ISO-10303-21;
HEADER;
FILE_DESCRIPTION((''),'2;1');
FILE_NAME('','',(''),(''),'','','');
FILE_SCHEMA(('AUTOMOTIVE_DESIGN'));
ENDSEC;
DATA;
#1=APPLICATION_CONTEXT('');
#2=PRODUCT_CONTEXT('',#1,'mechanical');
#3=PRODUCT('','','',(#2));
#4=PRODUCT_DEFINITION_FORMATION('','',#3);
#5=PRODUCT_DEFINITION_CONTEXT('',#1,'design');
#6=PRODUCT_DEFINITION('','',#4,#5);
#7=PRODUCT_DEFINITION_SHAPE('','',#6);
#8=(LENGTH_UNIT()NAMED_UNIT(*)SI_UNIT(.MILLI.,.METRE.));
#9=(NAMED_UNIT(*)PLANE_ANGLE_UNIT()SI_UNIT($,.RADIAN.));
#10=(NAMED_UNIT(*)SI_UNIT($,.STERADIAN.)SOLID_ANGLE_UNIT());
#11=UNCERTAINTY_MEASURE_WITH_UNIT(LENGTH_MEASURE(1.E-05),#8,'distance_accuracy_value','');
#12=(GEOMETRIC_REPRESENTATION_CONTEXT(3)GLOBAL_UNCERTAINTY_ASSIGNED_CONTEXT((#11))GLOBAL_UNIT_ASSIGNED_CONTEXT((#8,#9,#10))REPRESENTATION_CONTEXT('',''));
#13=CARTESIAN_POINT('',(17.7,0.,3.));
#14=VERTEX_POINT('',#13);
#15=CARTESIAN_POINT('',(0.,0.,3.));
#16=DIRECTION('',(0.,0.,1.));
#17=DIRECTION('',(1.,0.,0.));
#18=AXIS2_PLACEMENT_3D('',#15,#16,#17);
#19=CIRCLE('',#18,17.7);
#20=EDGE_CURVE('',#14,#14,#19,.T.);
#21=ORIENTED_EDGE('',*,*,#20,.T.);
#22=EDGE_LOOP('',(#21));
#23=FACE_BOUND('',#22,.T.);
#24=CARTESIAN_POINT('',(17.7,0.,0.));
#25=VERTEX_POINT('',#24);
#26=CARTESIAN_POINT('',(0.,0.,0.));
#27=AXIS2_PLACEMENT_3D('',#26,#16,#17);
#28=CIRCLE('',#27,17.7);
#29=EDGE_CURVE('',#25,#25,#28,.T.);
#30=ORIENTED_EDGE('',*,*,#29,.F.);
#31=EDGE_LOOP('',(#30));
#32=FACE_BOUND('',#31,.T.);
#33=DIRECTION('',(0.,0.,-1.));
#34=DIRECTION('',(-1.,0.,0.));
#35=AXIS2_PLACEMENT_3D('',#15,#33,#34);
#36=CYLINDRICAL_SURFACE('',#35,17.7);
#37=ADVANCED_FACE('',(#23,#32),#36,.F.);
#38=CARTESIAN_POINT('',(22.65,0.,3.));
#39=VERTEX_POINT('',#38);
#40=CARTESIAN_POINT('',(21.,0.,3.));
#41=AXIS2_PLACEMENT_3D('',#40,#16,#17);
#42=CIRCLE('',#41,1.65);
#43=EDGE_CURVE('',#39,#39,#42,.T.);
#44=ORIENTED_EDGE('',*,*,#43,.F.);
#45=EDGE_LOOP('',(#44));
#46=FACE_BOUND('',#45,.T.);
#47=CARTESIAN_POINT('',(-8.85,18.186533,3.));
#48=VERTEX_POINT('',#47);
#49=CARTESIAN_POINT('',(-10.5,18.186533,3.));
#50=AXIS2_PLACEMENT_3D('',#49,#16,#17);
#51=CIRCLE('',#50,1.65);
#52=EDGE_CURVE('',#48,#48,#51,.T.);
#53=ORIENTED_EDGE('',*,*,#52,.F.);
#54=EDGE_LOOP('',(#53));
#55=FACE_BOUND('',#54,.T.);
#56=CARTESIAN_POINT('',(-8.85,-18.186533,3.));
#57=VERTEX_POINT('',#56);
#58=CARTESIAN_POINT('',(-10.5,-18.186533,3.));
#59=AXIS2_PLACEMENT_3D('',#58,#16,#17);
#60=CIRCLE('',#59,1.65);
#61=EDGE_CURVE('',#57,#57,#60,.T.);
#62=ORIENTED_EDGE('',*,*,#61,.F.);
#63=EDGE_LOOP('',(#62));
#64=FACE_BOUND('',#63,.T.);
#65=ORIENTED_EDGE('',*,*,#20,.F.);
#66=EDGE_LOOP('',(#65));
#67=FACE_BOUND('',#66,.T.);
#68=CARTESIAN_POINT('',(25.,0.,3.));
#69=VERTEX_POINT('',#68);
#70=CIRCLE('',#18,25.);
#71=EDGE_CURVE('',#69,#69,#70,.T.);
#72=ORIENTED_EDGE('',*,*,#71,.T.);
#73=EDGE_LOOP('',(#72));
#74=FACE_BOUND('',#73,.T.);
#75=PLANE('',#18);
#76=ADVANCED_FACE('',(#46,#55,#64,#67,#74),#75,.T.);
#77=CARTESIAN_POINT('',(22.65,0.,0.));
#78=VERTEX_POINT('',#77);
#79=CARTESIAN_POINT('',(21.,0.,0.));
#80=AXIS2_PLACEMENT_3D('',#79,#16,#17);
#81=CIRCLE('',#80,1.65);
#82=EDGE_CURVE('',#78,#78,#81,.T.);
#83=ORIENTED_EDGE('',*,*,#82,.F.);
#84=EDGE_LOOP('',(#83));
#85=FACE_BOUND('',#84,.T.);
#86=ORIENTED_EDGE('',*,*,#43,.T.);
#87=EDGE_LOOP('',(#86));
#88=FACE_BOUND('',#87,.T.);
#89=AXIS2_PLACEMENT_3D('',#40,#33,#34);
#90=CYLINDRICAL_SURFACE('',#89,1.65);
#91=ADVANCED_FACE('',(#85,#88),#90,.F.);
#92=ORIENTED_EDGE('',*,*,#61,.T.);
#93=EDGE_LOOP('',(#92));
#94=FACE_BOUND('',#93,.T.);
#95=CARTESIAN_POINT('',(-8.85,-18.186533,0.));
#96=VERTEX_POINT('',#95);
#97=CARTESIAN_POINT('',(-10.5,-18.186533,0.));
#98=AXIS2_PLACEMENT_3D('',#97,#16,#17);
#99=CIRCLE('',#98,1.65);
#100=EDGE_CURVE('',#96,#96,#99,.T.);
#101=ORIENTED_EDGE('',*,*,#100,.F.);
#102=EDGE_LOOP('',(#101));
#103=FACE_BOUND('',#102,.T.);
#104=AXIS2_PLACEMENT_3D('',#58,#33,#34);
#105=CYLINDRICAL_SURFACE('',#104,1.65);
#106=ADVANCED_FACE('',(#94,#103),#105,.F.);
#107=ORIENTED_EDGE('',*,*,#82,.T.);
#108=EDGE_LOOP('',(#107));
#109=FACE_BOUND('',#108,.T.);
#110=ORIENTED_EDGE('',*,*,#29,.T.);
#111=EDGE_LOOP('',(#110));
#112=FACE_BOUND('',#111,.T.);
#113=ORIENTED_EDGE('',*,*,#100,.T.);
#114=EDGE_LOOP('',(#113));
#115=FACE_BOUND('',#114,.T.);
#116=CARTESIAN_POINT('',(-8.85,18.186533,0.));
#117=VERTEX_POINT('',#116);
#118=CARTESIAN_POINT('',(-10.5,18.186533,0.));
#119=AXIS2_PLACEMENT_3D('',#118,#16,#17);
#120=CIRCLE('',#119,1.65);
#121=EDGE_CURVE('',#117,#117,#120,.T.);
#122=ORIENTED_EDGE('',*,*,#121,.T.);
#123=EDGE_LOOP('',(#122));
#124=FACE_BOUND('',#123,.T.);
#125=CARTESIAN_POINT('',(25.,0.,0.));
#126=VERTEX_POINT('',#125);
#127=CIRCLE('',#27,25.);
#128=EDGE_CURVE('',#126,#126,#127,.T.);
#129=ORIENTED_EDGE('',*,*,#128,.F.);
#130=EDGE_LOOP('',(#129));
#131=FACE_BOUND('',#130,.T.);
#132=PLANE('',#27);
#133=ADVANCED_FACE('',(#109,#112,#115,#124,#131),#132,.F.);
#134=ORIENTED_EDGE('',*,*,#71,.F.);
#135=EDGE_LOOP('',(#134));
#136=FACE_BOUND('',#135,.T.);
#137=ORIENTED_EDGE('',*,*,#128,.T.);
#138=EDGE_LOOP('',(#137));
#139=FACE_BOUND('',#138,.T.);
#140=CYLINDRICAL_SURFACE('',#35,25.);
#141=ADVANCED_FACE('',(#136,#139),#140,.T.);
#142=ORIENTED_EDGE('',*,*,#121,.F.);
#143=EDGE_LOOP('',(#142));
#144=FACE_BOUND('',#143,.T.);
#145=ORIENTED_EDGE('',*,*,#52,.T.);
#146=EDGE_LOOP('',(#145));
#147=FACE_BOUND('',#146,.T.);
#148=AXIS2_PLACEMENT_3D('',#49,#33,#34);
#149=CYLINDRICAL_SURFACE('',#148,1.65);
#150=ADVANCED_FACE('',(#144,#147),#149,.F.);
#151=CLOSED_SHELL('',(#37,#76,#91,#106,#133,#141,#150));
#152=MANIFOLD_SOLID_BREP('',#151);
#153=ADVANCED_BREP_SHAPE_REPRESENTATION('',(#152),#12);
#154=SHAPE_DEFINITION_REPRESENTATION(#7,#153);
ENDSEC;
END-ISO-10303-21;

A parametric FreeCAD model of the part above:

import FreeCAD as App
import Part
import Sketcher

V = App.Vector
Q = App.Units.Quantity

doc = App.newDocument("Part")
params = doc.addObject("Spreadsheet::Sheet", "Params")
for row, (alias, value) in enumerate([
    ("sketch1_diameter", "50 mm"),
    ("sketch1_diameter2", "3.3 mm"),
    ("sketch1_diameter3", "35.4 mm"),
    ("pad1_length", "3 mm"),
], start=1):
    params.set(f"A{row}", alias)
    params.set(f"B{row}", "=" + value)
    params.setAlias(f"B{row}", alias)

body = doc.addObject("PartDesign::Body", "Body")

# Sketch on XY plane
sketch1 = body.newObject("Sketcher::SketchObject", "Sketch")
sketch1.AttachmentSupport = (doc.getObject("XY_Plane"), [""])
sketch1.MapMode = "FlatFace"
sketch1.addGeometry([
    Part.Circle(V(0, 0, 0), V(0, 0, 1), 25),  # 0
    Part.Circle(V(-10.5, -18.186533, 0), V(0, 0, 1), 1.65),  # 1
    Part.Circle(V(0, 0, 0), V(0, 0, 1), 17.7),  # 2
    Part.Circle(V(-10.5, 18.186533, 0), V(0, 0, 1), 1.65),  # 3
    Part.Circle(V(21, 0, 0), V(0, 0, 1), 1.65),  # 4
], False)
sketch1.addConstraint([
    Sketcher.Constraint("Coincident", 0, 3, -1, 1),
    Sketcher.Constraint("Coincident", 2, 3, -1, 1),
    Sketcher.Constraint("Equal", 1, 3),
    Sketcher.Constraint("Equal", 3, 4),
    Sketcher.Constraint("Symmetric", 1, 3, 3, 3, -1),
    Sketcher.Constraint("PointOnObject", 4, 3, -1),
    Sketcher.Constraint("Diameter", 0, Q("50 mm")),
    Sketcher.Constraint("Diameter", 1, Q("3.3 mm")),
    Sketcher.Constraint("Diameter", 2, Q("35.4 mm")),
    Sketcher.Constraint("DistanceX", -1, 1, 4, 3, Q("21 mm")),
    Sketcher.Constraint("DistanceX", 1, 3, -1, 1, Q("10.5 mm")),
    Sketcher.Constraint("DistanceY", 1, 3, -1, 1, Q("18.186533 mm")),
])
sketch1.setExpression("Constraints[6]", "Params.sketch1_diameter")
sketch1.setExpression("Constraints[7]", "Params.sketch1_diameter2")
sketch1.setExpression("Constraints[8]", "Params.sketch1_diameter3")
pad1 = body.newObject("PartDesign::Pad", "Pad")
pad1.Profile = sketch1
pad1.setExpression("Length", "Params.pad1_length")

doc.recompute()
